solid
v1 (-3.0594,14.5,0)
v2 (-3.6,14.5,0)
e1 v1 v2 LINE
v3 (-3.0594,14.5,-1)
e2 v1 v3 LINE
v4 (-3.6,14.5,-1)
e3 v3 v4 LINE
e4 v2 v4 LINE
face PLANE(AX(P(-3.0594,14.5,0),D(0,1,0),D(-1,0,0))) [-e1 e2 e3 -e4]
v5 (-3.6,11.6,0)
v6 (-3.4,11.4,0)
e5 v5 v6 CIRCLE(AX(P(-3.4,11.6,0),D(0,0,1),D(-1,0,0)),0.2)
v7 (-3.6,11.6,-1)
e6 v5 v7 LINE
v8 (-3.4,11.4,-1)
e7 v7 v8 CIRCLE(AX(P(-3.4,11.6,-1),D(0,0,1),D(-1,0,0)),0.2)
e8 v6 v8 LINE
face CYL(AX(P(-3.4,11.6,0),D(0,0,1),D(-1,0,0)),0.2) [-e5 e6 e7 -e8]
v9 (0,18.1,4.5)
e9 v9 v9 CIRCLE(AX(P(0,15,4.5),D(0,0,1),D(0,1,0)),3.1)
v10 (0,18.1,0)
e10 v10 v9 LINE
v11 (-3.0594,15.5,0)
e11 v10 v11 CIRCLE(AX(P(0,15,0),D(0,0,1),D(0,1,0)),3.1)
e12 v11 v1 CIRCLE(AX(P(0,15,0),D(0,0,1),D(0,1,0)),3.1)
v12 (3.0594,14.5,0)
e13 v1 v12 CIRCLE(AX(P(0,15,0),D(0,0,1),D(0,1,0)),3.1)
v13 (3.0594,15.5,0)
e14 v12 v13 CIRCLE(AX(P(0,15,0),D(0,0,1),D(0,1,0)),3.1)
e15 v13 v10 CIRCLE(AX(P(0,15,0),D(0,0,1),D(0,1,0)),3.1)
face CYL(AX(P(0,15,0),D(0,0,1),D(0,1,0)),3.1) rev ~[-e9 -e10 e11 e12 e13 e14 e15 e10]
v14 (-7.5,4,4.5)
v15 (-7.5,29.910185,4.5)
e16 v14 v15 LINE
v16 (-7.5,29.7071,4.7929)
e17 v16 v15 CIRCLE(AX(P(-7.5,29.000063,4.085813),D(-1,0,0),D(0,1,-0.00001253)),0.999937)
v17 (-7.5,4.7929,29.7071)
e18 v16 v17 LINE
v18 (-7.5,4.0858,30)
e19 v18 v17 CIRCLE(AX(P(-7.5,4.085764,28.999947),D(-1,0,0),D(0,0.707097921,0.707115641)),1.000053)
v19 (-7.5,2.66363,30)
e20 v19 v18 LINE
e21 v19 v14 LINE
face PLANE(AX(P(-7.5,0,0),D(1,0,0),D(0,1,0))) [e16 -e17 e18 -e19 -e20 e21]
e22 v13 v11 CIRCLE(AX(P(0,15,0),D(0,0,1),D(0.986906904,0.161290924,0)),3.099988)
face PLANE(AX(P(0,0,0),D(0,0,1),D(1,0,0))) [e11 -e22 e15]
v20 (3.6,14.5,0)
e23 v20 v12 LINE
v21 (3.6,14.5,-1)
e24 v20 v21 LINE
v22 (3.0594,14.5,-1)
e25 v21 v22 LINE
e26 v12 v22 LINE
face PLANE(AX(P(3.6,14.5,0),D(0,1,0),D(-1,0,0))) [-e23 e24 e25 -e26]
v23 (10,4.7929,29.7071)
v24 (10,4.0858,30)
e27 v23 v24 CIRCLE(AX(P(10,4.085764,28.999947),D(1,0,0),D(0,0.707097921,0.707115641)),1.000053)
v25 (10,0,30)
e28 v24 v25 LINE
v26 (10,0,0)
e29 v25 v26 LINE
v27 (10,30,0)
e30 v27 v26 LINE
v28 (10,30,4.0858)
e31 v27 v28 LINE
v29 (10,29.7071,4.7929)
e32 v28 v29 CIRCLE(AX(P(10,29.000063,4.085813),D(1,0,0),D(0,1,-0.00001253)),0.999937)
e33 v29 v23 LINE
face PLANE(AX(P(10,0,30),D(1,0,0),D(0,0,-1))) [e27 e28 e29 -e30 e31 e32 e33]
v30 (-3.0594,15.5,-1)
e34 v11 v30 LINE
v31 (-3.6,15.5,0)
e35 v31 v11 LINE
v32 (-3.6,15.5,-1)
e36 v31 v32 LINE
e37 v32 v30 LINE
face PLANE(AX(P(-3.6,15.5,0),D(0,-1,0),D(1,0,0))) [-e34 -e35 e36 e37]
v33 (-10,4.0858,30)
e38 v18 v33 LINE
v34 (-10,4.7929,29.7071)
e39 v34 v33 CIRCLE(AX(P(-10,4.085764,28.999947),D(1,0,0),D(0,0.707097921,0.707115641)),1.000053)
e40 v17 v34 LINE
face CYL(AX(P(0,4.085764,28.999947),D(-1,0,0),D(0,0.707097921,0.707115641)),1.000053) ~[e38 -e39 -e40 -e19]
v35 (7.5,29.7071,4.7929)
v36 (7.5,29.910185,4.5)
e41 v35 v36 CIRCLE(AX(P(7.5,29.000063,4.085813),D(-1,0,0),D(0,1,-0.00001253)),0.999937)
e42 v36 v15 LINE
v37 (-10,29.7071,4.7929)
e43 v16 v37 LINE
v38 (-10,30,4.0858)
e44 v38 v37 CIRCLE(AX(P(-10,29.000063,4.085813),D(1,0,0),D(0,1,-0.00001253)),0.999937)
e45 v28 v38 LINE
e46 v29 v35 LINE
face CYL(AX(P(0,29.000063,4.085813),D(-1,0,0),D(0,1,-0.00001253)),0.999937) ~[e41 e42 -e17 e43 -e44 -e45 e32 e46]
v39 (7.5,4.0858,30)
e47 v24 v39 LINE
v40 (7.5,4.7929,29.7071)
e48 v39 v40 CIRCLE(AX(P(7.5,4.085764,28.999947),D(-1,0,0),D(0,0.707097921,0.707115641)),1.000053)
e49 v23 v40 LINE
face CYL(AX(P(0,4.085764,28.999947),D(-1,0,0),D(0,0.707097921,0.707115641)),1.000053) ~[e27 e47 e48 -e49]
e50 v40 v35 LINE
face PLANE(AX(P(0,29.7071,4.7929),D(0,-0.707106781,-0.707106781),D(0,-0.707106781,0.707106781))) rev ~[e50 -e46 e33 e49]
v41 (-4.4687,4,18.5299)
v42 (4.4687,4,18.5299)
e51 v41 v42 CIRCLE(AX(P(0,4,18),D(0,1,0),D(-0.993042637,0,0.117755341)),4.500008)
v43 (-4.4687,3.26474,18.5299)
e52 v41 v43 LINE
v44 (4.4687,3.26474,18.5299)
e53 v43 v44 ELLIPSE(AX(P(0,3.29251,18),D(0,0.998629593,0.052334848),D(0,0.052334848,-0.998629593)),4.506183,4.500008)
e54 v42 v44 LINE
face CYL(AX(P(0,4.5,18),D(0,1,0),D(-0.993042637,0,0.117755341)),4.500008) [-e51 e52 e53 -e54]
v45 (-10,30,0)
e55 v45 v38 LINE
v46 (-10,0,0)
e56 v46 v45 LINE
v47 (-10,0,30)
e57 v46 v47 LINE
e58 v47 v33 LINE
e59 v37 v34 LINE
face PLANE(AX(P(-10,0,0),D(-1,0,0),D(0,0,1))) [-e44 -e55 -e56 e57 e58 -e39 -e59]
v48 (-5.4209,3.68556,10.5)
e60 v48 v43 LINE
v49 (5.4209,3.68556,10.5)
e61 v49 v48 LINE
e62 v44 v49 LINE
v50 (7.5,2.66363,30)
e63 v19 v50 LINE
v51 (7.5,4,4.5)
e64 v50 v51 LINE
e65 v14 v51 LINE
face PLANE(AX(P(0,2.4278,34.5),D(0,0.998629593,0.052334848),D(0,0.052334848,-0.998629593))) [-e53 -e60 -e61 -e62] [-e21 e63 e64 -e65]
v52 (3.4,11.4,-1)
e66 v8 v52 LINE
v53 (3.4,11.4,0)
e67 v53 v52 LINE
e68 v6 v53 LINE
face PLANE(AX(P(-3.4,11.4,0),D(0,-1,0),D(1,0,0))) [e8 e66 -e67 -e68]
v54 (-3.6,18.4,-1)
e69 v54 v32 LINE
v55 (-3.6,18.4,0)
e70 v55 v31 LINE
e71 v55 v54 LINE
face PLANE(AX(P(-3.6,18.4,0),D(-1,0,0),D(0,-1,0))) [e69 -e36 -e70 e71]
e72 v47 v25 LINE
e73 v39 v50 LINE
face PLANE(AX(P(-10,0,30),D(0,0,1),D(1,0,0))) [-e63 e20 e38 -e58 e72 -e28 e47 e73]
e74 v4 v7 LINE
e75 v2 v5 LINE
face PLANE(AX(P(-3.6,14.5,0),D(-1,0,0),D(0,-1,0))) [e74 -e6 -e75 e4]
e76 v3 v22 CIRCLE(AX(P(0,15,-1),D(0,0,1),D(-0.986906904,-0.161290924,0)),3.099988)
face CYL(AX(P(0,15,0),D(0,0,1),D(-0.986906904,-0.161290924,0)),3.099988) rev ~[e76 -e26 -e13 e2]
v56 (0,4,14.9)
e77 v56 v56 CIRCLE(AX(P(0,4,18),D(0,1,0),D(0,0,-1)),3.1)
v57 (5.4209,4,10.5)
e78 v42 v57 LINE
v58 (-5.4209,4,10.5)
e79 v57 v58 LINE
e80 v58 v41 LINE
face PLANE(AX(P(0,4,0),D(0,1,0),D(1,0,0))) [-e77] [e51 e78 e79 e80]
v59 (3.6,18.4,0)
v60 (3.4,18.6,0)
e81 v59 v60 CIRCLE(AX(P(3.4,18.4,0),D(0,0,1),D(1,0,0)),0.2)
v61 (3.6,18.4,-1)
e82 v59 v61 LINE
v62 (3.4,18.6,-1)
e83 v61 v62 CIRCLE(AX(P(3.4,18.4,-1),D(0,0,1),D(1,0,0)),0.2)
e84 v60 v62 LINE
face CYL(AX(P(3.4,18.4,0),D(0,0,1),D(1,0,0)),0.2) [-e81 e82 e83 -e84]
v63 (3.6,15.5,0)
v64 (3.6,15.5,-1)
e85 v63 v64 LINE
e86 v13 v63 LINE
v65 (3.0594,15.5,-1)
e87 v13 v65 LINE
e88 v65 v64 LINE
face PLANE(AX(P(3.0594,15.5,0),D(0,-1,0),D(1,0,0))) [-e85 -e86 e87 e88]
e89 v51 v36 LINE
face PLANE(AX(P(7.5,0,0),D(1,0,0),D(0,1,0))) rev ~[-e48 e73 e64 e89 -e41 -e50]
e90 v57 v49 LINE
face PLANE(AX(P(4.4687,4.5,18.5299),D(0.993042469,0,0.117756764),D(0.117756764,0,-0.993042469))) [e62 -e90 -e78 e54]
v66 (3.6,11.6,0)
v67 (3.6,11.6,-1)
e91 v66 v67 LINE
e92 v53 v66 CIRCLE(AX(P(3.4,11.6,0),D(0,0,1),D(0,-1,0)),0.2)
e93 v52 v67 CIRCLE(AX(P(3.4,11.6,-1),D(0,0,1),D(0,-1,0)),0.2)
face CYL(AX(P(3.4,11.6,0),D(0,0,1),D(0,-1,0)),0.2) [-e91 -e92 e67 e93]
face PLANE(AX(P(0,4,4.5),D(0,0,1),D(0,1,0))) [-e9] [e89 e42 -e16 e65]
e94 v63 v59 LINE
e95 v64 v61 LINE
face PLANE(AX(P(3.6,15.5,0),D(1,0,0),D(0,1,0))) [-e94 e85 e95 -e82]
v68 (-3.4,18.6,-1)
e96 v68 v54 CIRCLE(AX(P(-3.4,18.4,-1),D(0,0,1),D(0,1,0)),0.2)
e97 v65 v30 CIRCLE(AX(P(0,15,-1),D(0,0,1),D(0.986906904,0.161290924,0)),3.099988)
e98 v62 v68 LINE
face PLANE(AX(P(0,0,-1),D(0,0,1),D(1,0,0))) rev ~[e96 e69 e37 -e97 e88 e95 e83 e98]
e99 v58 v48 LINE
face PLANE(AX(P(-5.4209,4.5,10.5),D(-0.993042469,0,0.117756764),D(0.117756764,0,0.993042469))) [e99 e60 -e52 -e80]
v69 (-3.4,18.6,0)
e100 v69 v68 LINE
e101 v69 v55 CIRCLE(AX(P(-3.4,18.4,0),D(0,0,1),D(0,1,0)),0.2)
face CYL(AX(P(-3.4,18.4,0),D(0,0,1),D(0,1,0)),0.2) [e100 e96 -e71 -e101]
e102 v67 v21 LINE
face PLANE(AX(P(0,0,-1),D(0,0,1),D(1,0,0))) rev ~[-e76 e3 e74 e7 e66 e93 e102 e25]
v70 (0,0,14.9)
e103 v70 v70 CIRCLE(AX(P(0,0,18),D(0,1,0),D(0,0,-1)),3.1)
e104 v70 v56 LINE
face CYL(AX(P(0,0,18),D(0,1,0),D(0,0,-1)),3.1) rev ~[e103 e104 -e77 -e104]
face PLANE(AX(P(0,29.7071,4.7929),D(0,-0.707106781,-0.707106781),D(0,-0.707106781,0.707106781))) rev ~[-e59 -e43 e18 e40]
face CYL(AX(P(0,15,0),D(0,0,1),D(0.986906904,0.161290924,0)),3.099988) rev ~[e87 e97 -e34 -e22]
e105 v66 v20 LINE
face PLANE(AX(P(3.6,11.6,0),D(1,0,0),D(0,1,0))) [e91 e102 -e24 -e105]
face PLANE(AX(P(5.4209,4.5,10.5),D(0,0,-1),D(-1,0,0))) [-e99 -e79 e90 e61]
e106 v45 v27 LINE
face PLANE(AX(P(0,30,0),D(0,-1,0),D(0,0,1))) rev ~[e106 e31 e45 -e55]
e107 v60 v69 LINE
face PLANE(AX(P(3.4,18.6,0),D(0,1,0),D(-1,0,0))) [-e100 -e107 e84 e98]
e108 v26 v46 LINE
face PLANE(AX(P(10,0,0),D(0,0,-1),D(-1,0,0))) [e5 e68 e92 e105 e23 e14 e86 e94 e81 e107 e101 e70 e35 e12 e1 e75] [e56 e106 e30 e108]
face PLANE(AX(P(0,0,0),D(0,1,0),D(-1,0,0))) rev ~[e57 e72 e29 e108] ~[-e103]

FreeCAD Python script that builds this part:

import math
import FreeCAD as App
import Part
import Sketcher

V = App.Vector
Q = App.Units.Quantity


def add_polygon(sketch, points):
    """Adds a closed chain of lines whose ends are joined by coincident constraints."""
    first, n = sketch.GeometryCount, len(points)
    for a, b in zip(points, points[1:] + points[:1]):
        sketch.addGeometry(Part.LineSegment(App.Vector(*a, 0), App.Vector(*b, 0)), False)
    for i in range(n):
        sketch.addConstraint(Sketcher.Constraint("Coincident", first + i, 2, first + (i + 1) % n, 1))

doc = App.newDocument("Part")
body = doc.addObject("PartDesign::Body", "Body")

sketch1 = body.newObject("Sketcher::SketchObject", "Sketch")
sketch1.AttachmentSupport = (doc.getObject("YZ_Plane"), [""])
sketch1.MapMode = "FlatFace"
sketch1.addGeometry([
    Part.LineSegment(V(4.1, 30, 0), V(0, 30, 0)),
    Part.LineSegment(V(0, 30, 0), V(0, 0, 0)),
    Part.LineSegment(V(0, 0, 0), V(30, 0, 0)),
    Part.LineSegment(V(30, 0, 0), V(30, 4.1, 0)),
    Part.ArcOfCircle(Part.Circle(V(29, 4.1, 0), V(0, 0, 1), 1), math.radians(0), math.radians(45)),
    Part.LineSegment(V(29.7, 4.8, 0), V(4.8, 29.7, 0)),
    Part.ArcOfCircle(Part.Circle(V(4.1, 29, 0), V(0, 0, 1), 1), math.radians(45), math.radians(90)),
], False)
sketch1.addConstraint([
    Sketcher.Constraint("Coincident", 0, 2, 1, 1),
    Sketcher.Constraint("Coincident", 1, 2, 2, 1),
    Sketcher.Constraint("Coincident", 2, 2, 3, 1),
    Sketcher.Constraint("Tangent", 3, 2, 4, 1),
    Sketcher.Constraint("Tangent", 4, 2, 5, 1),
    Sketcher.Constraint("Tangent", 5, 2, 6, 1),
    Sketcher.Constraint("Tangent", 6, 2, 0, 1),
    Sketcher.Constraint("Horizontal", 0),
    Sketcher.Constraint("Vertical", 1),
    Sketcher.Constraint("Horizontal", 2),
    Sketcher.Constraint("Vertical", 3),
    Sketcher.Constraint("Coincident", 1, 2, -1, 1),
    Sketcher.Constraint("Equal", 4, 6),
    Sketcher.Constraint("Equal", 2, 1),
    Sketcher.Constraint("Equal", 0, 3),
    Sketcher.Constraint("Radius", 4, Q("1 mm")),
    Sketcher.Constraint("DistanceX", 2, 1, 2, 2, Q("30 mm")),
    Sketcher.Constraint("Distance", 5, Q("35.234 mm")),
])
pad1 = body.newObject("PartDesign::Pad", "Pad")
pad1.Profile = sketch1
pad1.Length = 20
pad1.Midplane = True

sketch2 = body.newObject("Sketcher::SketchObject", "Sketch001")
sketch2.AttachmentSupport = (doc.getObject("YZ_Plane"), [""])
sketch2.MapMode = "FlatFace"
add_polygon(sketch2, [(34, 34), (3, 34), (4, 5), (34, 5)])
sketch2.addConstraint([
    Sketcher.Constraint("Horizontal", 0),
    Sketcher.Constraint("Horizontal", 2),
    Sketcher.Constraint("Vertical", 3),
    Sketcher.Constraint("Angle", 1, Q("-87 deg")),
    Sketcher.Constraint("DistanceY", 3, 1, 3, 2, Q("29.5 mm")),
    Sketcher.Constraint("DistanceY", -1, 1, 1, 2, Q("5 mm")),
    Sketcher.Constraint("DistanceX", -1, 1, 2, 2, Q("34.5 mm")),
    Sketcher.Constraint("DistanceX", 0, 2, 0, 1, Q("31.5722 mm")),
])
pocket1 = body.newObject("PartDesign::Pocket", "Pocket")
pocket1.Profile = sketch2
pocket1.Length = 15
pocket1.Midplane = True

sketch3 = body.newObject("Sketcher::SketchObject", "Sketch002")
sketch3.AttachmentSupport = (doc.getObject("YZ_Plane"), [""])
sketch3.MapMode = "FlatFace"
add_polygon(sketch3, [(34, 34), (2, 34), (4, 4), (34, 4)])
sketch3.addConstraint([
    Sketcher.Constraint("Horizontal", 0),
    Sketcher.Constraint("Horizontal", 2),
    Sketcher.Constraint("Vertical", 3),
    Sketcher.Constraint("Equal", 2, 3),
    Sketcher.Constraint("DistanceX", 2, 1, 2, 2, Q("30 mm")),
    Sketcher.Constraint("Angle", 1, Q("-87 deg")),
    Sketcher.Constraint("DistanceX", -1, 1, 1, 2, Q("4 mm")),
    Sketcher.Constraint("DistanceY", -1, 1, 0, 2, Q("34.5 mm")),
])
pocket2 = body.newObject("PartDesign::Pocket", "Pocket001")
pocket2.Profile = sketch3
pocket2.Length = 15
pocket2.Midplane = True

sketch4 = body.newObject("Sketcher::SketchObject", "Sketch003")
sketch4.AttachmentSupport = (doc.getObject("XZ_Plane"), [""])
sketch4.MapMode = "FlatFace"
sketch4.AttachmentOffset = App.Placement(V(0, 0, -4.5), App.Rotation())
sketch4.addGeometry([
    Part.LineSegment(V(5.4, 10.5, 0), V(-5.4, 10.5, 0)),
    Part.LineSegment(V(-5.4, 10.5, 0), V(-4.5, 18.5, 0)),
    Part.ArcOfCircle(Part.Circle(V(0, 18, 0), V(0, 0, 1), 4.5), math.radians(7), math.radians(173)),
    Part.LineSegment(V(4.5, 18.5, 0), V(5.4, 10.5, 0)),
], False)
sketch4.addConstraint([
    Sketcher.Constraint("Coincident", 0, 2, 1, 1),
    Sketcher.Constraint("Tangent", 1, 2, 2, 2),
    Sketcher.Constraint("Tangent", 2, 1, 3, 1),
    Sketcher.Constraint("Coincident", 3, 2, 0, 1),
    Sketcher.Constraint("Horizontal", 0),
    Sketcher.Constraint("Symmetric", 1, 2, 2, 1, -2),
    Sketcher.Constraint("Radius", 2, Q("4.5 mm")),
    Sketcher.Constraint("DistanceY", -1, 1, 2, 3, Q("18 mm")),
    Sketcher.Constraint("DistanceY", -1, 1, 0, 2, Q("10.5 mm")),
    Sketcher.Constraint("DistanceY", -1, 1, 1, 2, Q("18.53 mm")),
])
pad2 = body.newObject("PartDesign::Pad", "Pad001")
pad2.Profile = sketch4
pad2.Length = 2.25

sketch5 = body.newObject("Sketcher::SketchObject", "Sketch004")
sketch5.AttachmentSupport = (doc.getObject("XY_Plane"), [""])
sketch5.MapMode = "FlatFace"
sketch5.addGeometry(Part.Circle(V(0, 15, 0), V(0, 0, 1), 3.1), False)
sketch5.addConstraint([
    Sketcher.Constraint("PointOnObject", 0, 3, -2),
    Sketcher.Constraint("Diameter", 0, Q("6.2 mm")),
    Sketcher.Constraint("DistanceY", -1, 1, 0, 3, Q("15 mm")),
])
doc.recompute()
hole = body.newObject("PartDesign::Hole", "Hole")
hole.Profile = sketch5
hole.ThreadType = "None"
hole.Diameter = 6.2
hole.DepthType = "Dimension"
hole.Depth = 5.5
hole.DrillPoint = "Flat"
hole.Reversed = True

sketch6 = body.newObject("Sketcher::SketchObject", "Sketch005")
sketch6.AttachmentSupport = (doc.getObject("XZ_Plane"), [""])
sketch6.MapMode = "FlatFace"
sketch6.addGeometry(Part.Circle(V(0, 18, 0), V(0, 0, 1), 3.1), False)
sketch6.addConstraint([
    Sketcher.Constraint("PointOnObject", 0, 3, -2),
    Sketcher.Constraint("Diameter", 0, Q("6.2 mm")),
    Sketcher.Constraint("DistanceY", -1, 1, 0, 3, Q("18 mm")),
])
doc.recompute()
hole2 = body.newObject("PartDesign::Hole", "Hole001")
hole2.Profile = sketch6
hole2.ThreadType = "None"
hole2.Diameter = 6.2
hole2.DepthType = "Dimension"
hole2.Depth = 4.5
hole2.DrillPoint = "Flat"

sketch7 = body.newObject("Sketcher::SketchObject", "Sketch006")
sketch7.AttachmentSupport = (doc.getObject("XZ_Plane"), [""])
sketch7.MapMode = "FlatFace"
add_polygon(sketch7, [(10, 0), (-10, 0), (-10, 30), (10, 30)])
sketch7.addConstraint([
    Sketcher.Constraint("Horizontal", 0),
    Sketcher.Constraint("Vertical", 1),
    Sketcher.Constraint("Horizontal", 2),
    Sketcher.Constraint("Vertical", 3),
    Sketcher.Constraint("Symmetric", 0, 2, 3, 2, -1, 1),
    Sketcher.Constraint("DistanceX", 0, 2, 0, 1, Q("20 mm")),
    Sketcher.Constraint("DistanceY", 1, 1, 1, 2, Q("30 mm")),
])
pad3 = body.newObject("PartDesign::Pad", "Pad002")
pad3.Profile = sketch7
pad3.Length = 1

sketch8 = body.newObject("Sketcher::SketchObject", "Sketch007")
sketch8.AttachmentSupport = (doc.getObject("XZ_Plane"), [""])
sketch8.MapMode = "FlatFace"
add_polygon(sketch8, [(10, 0), (-10, 0), (-10, 30), (10, 30)])
sketch8.addConstraint([
    Sketcher.Constraint("Horizontal", 0),
    Sketcher.Constraint("Vertical", 1),
    Sketcher.Constraint("Horizontal", 2),
    Sketcher.Constraint("Vertical", 3),
    Sketcher.Constraint("Symmetric", 0, 2, 3, 2, -1, 1),
    Sketcher.Constraint("DistanceX", 0, 2, 0, 1, Q("20 mm")),
    Sketcher.Constraint("DistanceY", 1, 1, 1, 2, Q("30 mm")),
])
pocket3 = body.newObject("PartDesign::Pocket", "Pocket002")
pocket3.Profile = sketch8
pocket3.Length = 1
pocket3.Reversed = True

sketch9 = body.newObject("Sketcher::SketchObject", "Sketch008")
sketch9.AttachmentSupport = (doc.getObject("XY_Plane"), [""])
sketch9.MapMode = "FlatFace"
sketch9.addGeometry([
    Part.LineSegment(V(-3.06, 14.5, 0), V(-3.6, 14.5, 0)),
    Part.LineSegment(V(-3.6, 14.5, 0), V(-3.6, 11.6, 0)),
    Part.ArcOfCircle(Part.Circle(V(-3.4, 11.6, 0), V(0, 0, 1), 0.2), math.radians(180), math.radians(270)),
    Part.LineSegment(V(-3.4, 11.4, 0), V(3.4, 11.4, 0)),
    Part.ArcOfCircle(Part.Circle(V(3.4, 11.6, 0), V(0, 0, 1), 0.2), math.radians(-90), math.radians(0)),
    Part.LineSegment(V(3.6, 11.6, 0), V(3.6, 14.5, 0)),
    Part.LineSegment(V(3.6, 14.5, 0), V(3.06, 14.5, 0)),
    Part.ArcOfCircle(Part.Circle(V(0, 15, 0), V(0, 0, 1), 3.1), math.radians(-171), math.radians(-9)),
], False)
sketch9.addConstraint([
    Sketcher.Constraint("Coincident", 0, 2, 1, 1),
    Sketcher.Constraint("Tangent", 1, 2, 2, 1),
    Sketcher.Constraint("Tangent", 2, 2, 3, 1),
    Sketcher.Constraint("Tangent", 3, 2, 4, 1),
    Sketcher.Constraint("Tangent", 4, 2, 5, 1),
    Sketcher.Constraint("Coincident", 5, 2, 6, 1),
    Sketcher.Constraint("Coincident", 6, 2, 7, 2),
    Sketcher.Constraint("Coincident", 7, 1, 0, 1),
    Sketcher.Constraint("Horizontal", 0),
    Sketcher.Constraint("Vertical", 1),
    Sketcher.Constraint("Horizontal", 3),
    Sketcher.Constraint("Vertical", 5),
    Sketcher.Constraint("Horizontal", 6),
    Sketcher.Constraint("Equal", 2, 4),
    Sketcher.Constraint("Symmetric", 0, 2, 5, 2, -2),
    Sketcher.Constraint("PointOnObject", 7, 3, -2),
    Sketcher.Constraint("Radius", 2, Q("0.2 mm")),
    Sketcher.Constraint("Radius", 7, Q("3.1 mm")),
    Sketcher.Constraint("DistanceX", 3, 1, 3, 2, Q("6.8 mm")),
    Sketcher.Constraint("DistanceY", 1, 2, 1, 1, Q("2.9 mm")),
    Sketcher.Constraint("DistanceY", -1, 1, 7, 3, Q("15 mm")),
    Sketcher.Constraint("DistanceY", -1, 1, 2, 3, Q("11.6 mm")),
])
pad4 = body.newObject("PartDesign::Pad", "Pad003")
pad4.Profile = sketch9
pad4.Length = 1
pad4.Reversed = True

sketch10 = body.newObject("Sketcher::SketchObject", "Sketch009")
sketch10.AttachmentSupport = (doc.getObject("XY_Plane"), [""])
sketch10.MapMode = "FlatFace"
sketch10.addGeometry([
    Part.LineSegment(V(-3.6, 18.4, 0), V(-3.6, 15.5, 0)),
    Part.LineSegment(V(-3.6, 15.5, 0), V(-3.06, 15.5, 0)),
    Part.ArcOfCircle(Part.Circle(V(0, 15, 0), V(0, 0, 1), 3.1), math.radians(9), math.radians(171)),
    Part.LineSegment(V(3.06, 15.5, 0), V(3.6, 15.5, 0)),
    Part.LineSegment(V(3.6, 15.5, 0), V(3.6, 18.4, 0)),
    Part.ArcOfCircle(Part.Circle(V(3.4, 18.4, 0), V(0, 0, 1), 0.2), math.radians(0), math.radians(90)),
    Part.LineSegment(V(3.4, 18.6, 0), V(-3.4, 18.6, 0)),
    Part.ArcOfCircle(Part.Circle(V(-3.4, 18.4, 0), V(0, 0, 1), 0.2), math.radians(90), math.radians(180)),
], False)
sketch10.addConstraint([
    Sketcher.Constraint("Coincident", 0, 2, 1, 1),
    Sketcher.Constraint("Coincident", 1, 2, 2, 2),
    Sketcher.Constraint("Coincident", 2, 1, 3, 1),
    Sketcher.Constraint("Coincident", 3, 2, 4, 1),
    Sketcher.Constraint("Tangent", 4, 2, 5, 1),
    Sketcher.Constraint("Tangent", 5, 2, 6, 1),
    Sketcher.Constraint("Tangent", 6, 2, 7, 1),
    Sketcher.Constraint("Tangent", 7, 2, 0, 1),
    Sketcher.Constraint("Vertical", 0),
    Sketcher.Constraint("Horizontal", 1),
    Sketcher.Constraint("Horizontal", 3),
    Sketcher.Constraint("Vertical", 4),
    Sketcher.Constraint("Horizontal", 6),
    Sketcher.Constraint("Equal", 5, 7),
    Sketcher.Constraint("Symmetric", 1, 2, 2, 1, -2),
    Sketcher.Constraint("Equal", 1, 3),
    Sketcher.Constraint("Radius", 2, Q("3.1 mm")),
    Sketcher.Constraint("Radius", 5, Q("0.2 mm")),
    Sketcher.Constraint("DistanceX", 6, 2, 6, 1, Q("6.8 mm")),
    Sketcher.Constraint("DistanceY", 0, 2, 0, 1, Q("2.9 mm")),
    Sketcher.Constraint("DistanceY", -1, 1, 2, 3, Q("15 mm")),
    Sketcher.Constraint("DistanceY", -1, 1, 5, 3, Q("18.4 mm")),
])
pad5 = body.newObject("PartDesign::Pad", "Pad004")
pad5.Profile = sketch10
pad5.Length = 1
pad5.Reversed = True

sketch11 = body.newObject("Sketcher::SketchObject", "Sketch010")
sketch11.AttachmentSupport = (doc.getObject("XZ_Plane"), [""])
sketch11.MapMode = "FlatFace"
sketch11.AttachmentOffset = App.Placement(V(0, 0, -4.5), App.Rotation())
sketch11.addGeometry([
    Part.LineSegment(V(5.4, 10.5, 0), V(-5.4, 10.5, 0)),
    Part.LineSegment(V(-5.4, 10.5, 0), V(-4.5, 18.5, 0)),
    Part.ArcOfCircle(Part.Circle(V(0, 18, 0), V(0, 0, 1), 4.5), math.radians(7), math.radians(173)),
    Part.LineSegment(V(4.5, 18.5, 0), V(5.4, 10.5, 0)),
], False)
sketch11.addConstraint([
    Sketcher.Constraint("Coincident", 0, 2, 1, 1),
    Sketcher.Constraint("Tangent", 1, 2, 2, 2),
    Sketcher.Constraint("Tangent", 2, 1, 3, 1),
    Sketcher.Constraint("Coincident", 3, 2, 0, 1),
    Sketcher.Constraint("Horizontal", 0),
    Sketcher.Constraint("Symmetric", 1, 2, 2, 1, -2),
    Sketcher.Constraint("Radius", 2, Q("4.5 mm")),
    Sketcher.Constraint("DistanceY", -1, 1, 2, 3, Q("18 mm")),
    Sketcher.Constraint("DistanceY", -1, 1, 0, 2, Q("10.5 mm")),
    Sketcher.Constraint("DistanceY", -1, 1, 1, 2, Q("18.53 mm")),
])
pocket4 = body.newObject("PartDesign::Pocket", "Pocket003")
pocket4.Profile = sketch11
pocket4.Length = 0.5
pocket4.Reversed = True

doc.recompute()
